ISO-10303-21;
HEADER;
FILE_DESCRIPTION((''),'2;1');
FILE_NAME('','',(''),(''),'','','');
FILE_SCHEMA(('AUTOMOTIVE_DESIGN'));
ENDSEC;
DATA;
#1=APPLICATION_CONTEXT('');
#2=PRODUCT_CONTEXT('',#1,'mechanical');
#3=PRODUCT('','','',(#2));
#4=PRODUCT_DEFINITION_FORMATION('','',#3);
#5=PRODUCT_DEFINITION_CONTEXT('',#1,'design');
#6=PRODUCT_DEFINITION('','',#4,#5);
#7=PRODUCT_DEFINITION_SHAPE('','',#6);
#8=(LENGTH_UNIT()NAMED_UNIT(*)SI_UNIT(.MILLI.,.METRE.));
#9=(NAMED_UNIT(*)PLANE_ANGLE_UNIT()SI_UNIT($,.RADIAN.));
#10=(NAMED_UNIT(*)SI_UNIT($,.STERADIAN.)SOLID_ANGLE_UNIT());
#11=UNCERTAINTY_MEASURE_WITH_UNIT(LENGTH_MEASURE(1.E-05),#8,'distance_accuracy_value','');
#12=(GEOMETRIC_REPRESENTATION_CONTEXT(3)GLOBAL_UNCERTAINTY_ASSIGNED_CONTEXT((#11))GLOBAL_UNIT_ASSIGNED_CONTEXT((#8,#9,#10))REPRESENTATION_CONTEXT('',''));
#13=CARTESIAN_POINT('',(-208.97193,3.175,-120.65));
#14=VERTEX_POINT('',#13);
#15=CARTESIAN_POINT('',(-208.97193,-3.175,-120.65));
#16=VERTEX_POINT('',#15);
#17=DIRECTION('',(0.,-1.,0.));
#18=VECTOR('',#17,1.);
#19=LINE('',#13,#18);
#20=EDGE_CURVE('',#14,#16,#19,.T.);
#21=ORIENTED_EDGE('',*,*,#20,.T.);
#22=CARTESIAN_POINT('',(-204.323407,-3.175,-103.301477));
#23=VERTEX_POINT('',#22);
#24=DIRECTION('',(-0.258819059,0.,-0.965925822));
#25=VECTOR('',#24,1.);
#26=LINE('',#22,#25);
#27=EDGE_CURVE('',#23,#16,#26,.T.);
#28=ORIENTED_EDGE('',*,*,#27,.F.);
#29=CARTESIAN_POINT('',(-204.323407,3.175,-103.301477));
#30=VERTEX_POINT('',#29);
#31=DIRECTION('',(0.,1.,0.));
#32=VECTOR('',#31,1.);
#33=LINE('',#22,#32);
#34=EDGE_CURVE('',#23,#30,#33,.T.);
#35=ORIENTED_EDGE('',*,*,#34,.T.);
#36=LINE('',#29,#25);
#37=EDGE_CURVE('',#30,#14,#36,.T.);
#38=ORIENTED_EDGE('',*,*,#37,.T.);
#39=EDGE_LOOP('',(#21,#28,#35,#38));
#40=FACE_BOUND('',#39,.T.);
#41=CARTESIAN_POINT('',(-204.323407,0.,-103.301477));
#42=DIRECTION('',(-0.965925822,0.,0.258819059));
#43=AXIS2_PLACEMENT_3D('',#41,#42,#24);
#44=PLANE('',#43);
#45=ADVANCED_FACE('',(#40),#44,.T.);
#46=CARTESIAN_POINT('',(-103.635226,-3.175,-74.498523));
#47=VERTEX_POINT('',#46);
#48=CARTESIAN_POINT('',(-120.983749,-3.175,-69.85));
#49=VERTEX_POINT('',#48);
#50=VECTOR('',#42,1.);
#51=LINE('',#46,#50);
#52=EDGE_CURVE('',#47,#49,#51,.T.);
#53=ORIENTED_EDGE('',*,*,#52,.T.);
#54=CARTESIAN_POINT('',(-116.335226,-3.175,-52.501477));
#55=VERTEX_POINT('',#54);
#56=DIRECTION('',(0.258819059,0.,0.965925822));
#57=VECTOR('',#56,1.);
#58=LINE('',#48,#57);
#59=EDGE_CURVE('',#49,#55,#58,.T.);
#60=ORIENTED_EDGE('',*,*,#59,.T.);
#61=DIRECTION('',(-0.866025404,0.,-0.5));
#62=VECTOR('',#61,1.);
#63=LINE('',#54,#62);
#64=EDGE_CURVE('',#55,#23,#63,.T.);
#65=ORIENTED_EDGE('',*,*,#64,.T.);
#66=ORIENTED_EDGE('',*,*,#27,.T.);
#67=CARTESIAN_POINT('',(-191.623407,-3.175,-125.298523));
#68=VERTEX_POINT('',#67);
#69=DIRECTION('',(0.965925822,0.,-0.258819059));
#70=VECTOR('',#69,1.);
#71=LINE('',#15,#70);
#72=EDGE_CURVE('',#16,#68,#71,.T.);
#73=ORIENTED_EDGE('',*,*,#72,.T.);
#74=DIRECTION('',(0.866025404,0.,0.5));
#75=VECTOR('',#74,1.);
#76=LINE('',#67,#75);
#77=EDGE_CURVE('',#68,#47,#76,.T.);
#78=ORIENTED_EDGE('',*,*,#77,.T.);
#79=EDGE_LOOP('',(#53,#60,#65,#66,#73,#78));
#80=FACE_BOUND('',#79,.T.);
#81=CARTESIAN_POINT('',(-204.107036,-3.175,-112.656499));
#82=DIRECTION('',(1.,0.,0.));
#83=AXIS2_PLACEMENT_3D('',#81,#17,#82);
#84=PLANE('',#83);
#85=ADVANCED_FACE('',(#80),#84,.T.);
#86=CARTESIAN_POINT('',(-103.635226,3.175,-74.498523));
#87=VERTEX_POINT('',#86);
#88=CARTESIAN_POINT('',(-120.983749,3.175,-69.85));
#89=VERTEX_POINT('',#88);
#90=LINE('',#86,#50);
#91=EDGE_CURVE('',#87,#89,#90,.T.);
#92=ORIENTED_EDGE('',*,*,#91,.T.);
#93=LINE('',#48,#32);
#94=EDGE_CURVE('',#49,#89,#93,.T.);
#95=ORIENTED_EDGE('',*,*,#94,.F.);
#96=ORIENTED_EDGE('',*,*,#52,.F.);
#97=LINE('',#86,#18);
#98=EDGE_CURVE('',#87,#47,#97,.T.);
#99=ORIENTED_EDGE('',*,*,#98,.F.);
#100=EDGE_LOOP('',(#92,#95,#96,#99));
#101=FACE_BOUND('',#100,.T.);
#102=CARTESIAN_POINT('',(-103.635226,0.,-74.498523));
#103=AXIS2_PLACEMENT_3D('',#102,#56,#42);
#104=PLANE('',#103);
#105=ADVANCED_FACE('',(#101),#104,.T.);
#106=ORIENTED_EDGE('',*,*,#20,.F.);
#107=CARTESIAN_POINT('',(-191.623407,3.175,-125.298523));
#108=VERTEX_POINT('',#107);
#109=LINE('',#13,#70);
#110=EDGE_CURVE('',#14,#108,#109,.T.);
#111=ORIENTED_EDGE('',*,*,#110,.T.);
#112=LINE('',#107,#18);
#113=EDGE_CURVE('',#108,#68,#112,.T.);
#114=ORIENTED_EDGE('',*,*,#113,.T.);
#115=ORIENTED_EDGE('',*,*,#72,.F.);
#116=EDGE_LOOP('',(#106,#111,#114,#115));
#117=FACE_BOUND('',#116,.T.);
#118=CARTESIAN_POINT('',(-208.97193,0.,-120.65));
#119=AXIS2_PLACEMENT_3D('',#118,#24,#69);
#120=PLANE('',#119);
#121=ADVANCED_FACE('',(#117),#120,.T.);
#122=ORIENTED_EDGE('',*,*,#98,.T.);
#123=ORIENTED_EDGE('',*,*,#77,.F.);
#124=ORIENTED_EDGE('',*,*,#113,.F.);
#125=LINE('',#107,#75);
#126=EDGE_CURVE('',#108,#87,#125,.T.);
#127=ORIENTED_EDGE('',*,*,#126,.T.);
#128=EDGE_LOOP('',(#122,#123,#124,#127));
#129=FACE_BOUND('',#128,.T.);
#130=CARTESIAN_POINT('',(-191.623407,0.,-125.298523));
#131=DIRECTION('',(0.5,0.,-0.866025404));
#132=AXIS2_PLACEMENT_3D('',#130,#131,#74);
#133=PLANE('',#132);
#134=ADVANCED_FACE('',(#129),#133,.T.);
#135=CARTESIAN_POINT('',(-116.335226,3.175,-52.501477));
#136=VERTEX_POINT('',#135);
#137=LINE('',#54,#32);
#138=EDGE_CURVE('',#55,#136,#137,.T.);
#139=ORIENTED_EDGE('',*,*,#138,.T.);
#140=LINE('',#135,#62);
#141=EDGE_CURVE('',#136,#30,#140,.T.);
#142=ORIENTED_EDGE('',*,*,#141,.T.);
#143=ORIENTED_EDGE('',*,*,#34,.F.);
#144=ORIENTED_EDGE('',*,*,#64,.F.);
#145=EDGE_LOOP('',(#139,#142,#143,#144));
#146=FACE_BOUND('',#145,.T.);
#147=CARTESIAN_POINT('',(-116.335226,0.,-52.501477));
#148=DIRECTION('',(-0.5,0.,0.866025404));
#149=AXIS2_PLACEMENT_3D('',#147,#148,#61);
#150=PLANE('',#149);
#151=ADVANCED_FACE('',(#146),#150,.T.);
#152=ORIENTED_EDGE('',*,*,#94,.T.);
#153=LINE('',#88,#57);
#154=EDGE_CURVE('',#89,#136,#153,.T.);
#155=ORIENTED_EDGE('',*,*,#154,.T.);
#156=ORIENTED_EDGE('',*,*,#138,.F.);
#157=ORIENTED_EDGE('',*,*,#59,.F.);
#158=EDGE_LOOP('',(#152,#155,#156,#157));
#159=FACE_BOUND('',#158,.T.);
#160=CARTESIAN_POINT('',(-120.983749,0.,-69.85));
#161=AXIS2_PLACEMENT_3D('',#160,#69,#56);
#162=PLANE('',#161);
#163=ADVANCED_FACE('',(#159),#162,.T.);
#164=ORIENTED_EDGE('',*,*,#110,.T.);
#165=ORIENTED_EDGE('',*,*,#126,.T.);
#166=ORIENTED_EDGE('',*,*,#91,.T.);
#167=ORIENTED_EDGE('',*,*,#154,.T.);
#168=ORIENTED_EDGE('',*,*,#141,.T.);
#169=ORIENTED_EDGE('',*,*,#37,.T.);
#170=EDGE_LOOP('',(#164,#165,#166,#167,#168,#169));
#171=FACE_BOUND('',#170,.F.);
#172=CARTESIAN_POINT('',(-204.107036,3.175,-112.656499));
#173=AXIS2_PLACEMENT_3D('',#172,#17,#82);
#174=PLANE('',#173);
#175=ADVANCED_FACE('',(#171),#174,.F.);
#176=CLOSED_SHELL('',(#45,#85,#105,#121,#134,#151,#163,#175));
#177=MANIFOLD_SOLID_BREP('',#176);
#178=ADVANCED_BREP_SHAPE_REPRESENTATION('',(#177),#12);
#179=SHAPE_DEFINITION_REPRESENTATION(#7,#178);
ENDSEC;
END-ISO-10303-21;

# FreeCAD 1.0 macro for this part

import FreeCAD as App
import Part
import Sketcher

V = App.Vector
Q = App.Units.Quantity

doc = App.newDocument("Part")
body = doc.addObject("PartDesign::Body", "Body")

sketch1 = body.newObject("Sketcher::SketchObject", "Sketch")
sketch1.AttachmentSupport = (doc.getObject("XZ_Plane"), [""])
sketch1.MapMode = "FlatFace"
sketch1.addGeometry(Part.LineSegment(V(-204, -103, 0), V(-209, -121, 0)), False)
sketch1.addGeometry(Part.LineSegment(V(-209, -121, 0), V(-192, -125, 0)), False)
sketch1.addGeometry(Part.LineSegment(V(-192, -125, 0), V(-104, -74, 0)), False)
sketch1.addGeometry(Part.LineSegment(V(-104, -74, 0), V(-121, -70, 0)), False)
sketch1.addGeometry(Part.LineSegment(V(-121, -70, 0), V(-116, -53, 0)), False)
sketch1.addGeometry(Part.LineSegment(V(-116, -53, 0), V(-204, -103, 0)), False)
sketch1.addConstraint(Sketcher.Constraint("Coincident", 0, 2, 1, 1))
sketch1.addConstraint(Sketcher.Constraint("Coincident", 1, 2, 2, 1))
sketch1.addConstraint(Sketcher.Constraint("Coincident", 2, 2, 3, 1))
sketch1.addConstraint(Sketcher.Constraint("Coincident", 3, 2, 4, 1))
sketch1.addConstraint(Sketcher.Constraint("Coincident", 4, 2, 5, 1))
sketch1.addConstraint(Sketcher.Constraint("Coincident", 5, 2, 0, 1))
sketch1.addConstraint(Sketcher.Constraint("Perpendicular", 0, 1))
sketch1.addConstraint(Sketcher.Constraint("Parallel", 1, 3))
sketch1.addConstraint(Sketcher.Constraint("Perpendicular", 3, 4))
sketch1.addConstraint(Sketcher.Constraint("Parallel", 2, 5))
sketch1.addConstraint(Sketcher.Constraint("Equal", 0, 1))
sketch1.addConstraint(Sketcher.Constraint("Equal", 1, 3))
sketch1.addConstraint(Sketcher.Constraint("Distance", 2, Q("4 in")))
sketch1.addConstraint(Sketcher.Constraint("Angle", 0, Q("-105.000001 deg")))
sketch1.addConstraint(Sketcher.Constraint("Angle", 2, Q("30 deg")))
sketch1.addConstraint(Sketcher.Constraint("DistanceX", 4, 2, 2, 2, Q("0.5 in")))
sketch1.addConstraint(Sketcher.Constraint("DistanceY", 0, 2, -1, 1, Q("4.75 in")))
sketch1.addConstraint(Sketcher.Constraint("DistanceX", 0, 2, -1, 1, 208.97193))
pad1 = body.newObject("PartDesign::Pad", "Pad")
pad1.Profile = sketch1
pad1.Length = Q("0.25 in")
pad1.Midplane = True

doc.recompute()
